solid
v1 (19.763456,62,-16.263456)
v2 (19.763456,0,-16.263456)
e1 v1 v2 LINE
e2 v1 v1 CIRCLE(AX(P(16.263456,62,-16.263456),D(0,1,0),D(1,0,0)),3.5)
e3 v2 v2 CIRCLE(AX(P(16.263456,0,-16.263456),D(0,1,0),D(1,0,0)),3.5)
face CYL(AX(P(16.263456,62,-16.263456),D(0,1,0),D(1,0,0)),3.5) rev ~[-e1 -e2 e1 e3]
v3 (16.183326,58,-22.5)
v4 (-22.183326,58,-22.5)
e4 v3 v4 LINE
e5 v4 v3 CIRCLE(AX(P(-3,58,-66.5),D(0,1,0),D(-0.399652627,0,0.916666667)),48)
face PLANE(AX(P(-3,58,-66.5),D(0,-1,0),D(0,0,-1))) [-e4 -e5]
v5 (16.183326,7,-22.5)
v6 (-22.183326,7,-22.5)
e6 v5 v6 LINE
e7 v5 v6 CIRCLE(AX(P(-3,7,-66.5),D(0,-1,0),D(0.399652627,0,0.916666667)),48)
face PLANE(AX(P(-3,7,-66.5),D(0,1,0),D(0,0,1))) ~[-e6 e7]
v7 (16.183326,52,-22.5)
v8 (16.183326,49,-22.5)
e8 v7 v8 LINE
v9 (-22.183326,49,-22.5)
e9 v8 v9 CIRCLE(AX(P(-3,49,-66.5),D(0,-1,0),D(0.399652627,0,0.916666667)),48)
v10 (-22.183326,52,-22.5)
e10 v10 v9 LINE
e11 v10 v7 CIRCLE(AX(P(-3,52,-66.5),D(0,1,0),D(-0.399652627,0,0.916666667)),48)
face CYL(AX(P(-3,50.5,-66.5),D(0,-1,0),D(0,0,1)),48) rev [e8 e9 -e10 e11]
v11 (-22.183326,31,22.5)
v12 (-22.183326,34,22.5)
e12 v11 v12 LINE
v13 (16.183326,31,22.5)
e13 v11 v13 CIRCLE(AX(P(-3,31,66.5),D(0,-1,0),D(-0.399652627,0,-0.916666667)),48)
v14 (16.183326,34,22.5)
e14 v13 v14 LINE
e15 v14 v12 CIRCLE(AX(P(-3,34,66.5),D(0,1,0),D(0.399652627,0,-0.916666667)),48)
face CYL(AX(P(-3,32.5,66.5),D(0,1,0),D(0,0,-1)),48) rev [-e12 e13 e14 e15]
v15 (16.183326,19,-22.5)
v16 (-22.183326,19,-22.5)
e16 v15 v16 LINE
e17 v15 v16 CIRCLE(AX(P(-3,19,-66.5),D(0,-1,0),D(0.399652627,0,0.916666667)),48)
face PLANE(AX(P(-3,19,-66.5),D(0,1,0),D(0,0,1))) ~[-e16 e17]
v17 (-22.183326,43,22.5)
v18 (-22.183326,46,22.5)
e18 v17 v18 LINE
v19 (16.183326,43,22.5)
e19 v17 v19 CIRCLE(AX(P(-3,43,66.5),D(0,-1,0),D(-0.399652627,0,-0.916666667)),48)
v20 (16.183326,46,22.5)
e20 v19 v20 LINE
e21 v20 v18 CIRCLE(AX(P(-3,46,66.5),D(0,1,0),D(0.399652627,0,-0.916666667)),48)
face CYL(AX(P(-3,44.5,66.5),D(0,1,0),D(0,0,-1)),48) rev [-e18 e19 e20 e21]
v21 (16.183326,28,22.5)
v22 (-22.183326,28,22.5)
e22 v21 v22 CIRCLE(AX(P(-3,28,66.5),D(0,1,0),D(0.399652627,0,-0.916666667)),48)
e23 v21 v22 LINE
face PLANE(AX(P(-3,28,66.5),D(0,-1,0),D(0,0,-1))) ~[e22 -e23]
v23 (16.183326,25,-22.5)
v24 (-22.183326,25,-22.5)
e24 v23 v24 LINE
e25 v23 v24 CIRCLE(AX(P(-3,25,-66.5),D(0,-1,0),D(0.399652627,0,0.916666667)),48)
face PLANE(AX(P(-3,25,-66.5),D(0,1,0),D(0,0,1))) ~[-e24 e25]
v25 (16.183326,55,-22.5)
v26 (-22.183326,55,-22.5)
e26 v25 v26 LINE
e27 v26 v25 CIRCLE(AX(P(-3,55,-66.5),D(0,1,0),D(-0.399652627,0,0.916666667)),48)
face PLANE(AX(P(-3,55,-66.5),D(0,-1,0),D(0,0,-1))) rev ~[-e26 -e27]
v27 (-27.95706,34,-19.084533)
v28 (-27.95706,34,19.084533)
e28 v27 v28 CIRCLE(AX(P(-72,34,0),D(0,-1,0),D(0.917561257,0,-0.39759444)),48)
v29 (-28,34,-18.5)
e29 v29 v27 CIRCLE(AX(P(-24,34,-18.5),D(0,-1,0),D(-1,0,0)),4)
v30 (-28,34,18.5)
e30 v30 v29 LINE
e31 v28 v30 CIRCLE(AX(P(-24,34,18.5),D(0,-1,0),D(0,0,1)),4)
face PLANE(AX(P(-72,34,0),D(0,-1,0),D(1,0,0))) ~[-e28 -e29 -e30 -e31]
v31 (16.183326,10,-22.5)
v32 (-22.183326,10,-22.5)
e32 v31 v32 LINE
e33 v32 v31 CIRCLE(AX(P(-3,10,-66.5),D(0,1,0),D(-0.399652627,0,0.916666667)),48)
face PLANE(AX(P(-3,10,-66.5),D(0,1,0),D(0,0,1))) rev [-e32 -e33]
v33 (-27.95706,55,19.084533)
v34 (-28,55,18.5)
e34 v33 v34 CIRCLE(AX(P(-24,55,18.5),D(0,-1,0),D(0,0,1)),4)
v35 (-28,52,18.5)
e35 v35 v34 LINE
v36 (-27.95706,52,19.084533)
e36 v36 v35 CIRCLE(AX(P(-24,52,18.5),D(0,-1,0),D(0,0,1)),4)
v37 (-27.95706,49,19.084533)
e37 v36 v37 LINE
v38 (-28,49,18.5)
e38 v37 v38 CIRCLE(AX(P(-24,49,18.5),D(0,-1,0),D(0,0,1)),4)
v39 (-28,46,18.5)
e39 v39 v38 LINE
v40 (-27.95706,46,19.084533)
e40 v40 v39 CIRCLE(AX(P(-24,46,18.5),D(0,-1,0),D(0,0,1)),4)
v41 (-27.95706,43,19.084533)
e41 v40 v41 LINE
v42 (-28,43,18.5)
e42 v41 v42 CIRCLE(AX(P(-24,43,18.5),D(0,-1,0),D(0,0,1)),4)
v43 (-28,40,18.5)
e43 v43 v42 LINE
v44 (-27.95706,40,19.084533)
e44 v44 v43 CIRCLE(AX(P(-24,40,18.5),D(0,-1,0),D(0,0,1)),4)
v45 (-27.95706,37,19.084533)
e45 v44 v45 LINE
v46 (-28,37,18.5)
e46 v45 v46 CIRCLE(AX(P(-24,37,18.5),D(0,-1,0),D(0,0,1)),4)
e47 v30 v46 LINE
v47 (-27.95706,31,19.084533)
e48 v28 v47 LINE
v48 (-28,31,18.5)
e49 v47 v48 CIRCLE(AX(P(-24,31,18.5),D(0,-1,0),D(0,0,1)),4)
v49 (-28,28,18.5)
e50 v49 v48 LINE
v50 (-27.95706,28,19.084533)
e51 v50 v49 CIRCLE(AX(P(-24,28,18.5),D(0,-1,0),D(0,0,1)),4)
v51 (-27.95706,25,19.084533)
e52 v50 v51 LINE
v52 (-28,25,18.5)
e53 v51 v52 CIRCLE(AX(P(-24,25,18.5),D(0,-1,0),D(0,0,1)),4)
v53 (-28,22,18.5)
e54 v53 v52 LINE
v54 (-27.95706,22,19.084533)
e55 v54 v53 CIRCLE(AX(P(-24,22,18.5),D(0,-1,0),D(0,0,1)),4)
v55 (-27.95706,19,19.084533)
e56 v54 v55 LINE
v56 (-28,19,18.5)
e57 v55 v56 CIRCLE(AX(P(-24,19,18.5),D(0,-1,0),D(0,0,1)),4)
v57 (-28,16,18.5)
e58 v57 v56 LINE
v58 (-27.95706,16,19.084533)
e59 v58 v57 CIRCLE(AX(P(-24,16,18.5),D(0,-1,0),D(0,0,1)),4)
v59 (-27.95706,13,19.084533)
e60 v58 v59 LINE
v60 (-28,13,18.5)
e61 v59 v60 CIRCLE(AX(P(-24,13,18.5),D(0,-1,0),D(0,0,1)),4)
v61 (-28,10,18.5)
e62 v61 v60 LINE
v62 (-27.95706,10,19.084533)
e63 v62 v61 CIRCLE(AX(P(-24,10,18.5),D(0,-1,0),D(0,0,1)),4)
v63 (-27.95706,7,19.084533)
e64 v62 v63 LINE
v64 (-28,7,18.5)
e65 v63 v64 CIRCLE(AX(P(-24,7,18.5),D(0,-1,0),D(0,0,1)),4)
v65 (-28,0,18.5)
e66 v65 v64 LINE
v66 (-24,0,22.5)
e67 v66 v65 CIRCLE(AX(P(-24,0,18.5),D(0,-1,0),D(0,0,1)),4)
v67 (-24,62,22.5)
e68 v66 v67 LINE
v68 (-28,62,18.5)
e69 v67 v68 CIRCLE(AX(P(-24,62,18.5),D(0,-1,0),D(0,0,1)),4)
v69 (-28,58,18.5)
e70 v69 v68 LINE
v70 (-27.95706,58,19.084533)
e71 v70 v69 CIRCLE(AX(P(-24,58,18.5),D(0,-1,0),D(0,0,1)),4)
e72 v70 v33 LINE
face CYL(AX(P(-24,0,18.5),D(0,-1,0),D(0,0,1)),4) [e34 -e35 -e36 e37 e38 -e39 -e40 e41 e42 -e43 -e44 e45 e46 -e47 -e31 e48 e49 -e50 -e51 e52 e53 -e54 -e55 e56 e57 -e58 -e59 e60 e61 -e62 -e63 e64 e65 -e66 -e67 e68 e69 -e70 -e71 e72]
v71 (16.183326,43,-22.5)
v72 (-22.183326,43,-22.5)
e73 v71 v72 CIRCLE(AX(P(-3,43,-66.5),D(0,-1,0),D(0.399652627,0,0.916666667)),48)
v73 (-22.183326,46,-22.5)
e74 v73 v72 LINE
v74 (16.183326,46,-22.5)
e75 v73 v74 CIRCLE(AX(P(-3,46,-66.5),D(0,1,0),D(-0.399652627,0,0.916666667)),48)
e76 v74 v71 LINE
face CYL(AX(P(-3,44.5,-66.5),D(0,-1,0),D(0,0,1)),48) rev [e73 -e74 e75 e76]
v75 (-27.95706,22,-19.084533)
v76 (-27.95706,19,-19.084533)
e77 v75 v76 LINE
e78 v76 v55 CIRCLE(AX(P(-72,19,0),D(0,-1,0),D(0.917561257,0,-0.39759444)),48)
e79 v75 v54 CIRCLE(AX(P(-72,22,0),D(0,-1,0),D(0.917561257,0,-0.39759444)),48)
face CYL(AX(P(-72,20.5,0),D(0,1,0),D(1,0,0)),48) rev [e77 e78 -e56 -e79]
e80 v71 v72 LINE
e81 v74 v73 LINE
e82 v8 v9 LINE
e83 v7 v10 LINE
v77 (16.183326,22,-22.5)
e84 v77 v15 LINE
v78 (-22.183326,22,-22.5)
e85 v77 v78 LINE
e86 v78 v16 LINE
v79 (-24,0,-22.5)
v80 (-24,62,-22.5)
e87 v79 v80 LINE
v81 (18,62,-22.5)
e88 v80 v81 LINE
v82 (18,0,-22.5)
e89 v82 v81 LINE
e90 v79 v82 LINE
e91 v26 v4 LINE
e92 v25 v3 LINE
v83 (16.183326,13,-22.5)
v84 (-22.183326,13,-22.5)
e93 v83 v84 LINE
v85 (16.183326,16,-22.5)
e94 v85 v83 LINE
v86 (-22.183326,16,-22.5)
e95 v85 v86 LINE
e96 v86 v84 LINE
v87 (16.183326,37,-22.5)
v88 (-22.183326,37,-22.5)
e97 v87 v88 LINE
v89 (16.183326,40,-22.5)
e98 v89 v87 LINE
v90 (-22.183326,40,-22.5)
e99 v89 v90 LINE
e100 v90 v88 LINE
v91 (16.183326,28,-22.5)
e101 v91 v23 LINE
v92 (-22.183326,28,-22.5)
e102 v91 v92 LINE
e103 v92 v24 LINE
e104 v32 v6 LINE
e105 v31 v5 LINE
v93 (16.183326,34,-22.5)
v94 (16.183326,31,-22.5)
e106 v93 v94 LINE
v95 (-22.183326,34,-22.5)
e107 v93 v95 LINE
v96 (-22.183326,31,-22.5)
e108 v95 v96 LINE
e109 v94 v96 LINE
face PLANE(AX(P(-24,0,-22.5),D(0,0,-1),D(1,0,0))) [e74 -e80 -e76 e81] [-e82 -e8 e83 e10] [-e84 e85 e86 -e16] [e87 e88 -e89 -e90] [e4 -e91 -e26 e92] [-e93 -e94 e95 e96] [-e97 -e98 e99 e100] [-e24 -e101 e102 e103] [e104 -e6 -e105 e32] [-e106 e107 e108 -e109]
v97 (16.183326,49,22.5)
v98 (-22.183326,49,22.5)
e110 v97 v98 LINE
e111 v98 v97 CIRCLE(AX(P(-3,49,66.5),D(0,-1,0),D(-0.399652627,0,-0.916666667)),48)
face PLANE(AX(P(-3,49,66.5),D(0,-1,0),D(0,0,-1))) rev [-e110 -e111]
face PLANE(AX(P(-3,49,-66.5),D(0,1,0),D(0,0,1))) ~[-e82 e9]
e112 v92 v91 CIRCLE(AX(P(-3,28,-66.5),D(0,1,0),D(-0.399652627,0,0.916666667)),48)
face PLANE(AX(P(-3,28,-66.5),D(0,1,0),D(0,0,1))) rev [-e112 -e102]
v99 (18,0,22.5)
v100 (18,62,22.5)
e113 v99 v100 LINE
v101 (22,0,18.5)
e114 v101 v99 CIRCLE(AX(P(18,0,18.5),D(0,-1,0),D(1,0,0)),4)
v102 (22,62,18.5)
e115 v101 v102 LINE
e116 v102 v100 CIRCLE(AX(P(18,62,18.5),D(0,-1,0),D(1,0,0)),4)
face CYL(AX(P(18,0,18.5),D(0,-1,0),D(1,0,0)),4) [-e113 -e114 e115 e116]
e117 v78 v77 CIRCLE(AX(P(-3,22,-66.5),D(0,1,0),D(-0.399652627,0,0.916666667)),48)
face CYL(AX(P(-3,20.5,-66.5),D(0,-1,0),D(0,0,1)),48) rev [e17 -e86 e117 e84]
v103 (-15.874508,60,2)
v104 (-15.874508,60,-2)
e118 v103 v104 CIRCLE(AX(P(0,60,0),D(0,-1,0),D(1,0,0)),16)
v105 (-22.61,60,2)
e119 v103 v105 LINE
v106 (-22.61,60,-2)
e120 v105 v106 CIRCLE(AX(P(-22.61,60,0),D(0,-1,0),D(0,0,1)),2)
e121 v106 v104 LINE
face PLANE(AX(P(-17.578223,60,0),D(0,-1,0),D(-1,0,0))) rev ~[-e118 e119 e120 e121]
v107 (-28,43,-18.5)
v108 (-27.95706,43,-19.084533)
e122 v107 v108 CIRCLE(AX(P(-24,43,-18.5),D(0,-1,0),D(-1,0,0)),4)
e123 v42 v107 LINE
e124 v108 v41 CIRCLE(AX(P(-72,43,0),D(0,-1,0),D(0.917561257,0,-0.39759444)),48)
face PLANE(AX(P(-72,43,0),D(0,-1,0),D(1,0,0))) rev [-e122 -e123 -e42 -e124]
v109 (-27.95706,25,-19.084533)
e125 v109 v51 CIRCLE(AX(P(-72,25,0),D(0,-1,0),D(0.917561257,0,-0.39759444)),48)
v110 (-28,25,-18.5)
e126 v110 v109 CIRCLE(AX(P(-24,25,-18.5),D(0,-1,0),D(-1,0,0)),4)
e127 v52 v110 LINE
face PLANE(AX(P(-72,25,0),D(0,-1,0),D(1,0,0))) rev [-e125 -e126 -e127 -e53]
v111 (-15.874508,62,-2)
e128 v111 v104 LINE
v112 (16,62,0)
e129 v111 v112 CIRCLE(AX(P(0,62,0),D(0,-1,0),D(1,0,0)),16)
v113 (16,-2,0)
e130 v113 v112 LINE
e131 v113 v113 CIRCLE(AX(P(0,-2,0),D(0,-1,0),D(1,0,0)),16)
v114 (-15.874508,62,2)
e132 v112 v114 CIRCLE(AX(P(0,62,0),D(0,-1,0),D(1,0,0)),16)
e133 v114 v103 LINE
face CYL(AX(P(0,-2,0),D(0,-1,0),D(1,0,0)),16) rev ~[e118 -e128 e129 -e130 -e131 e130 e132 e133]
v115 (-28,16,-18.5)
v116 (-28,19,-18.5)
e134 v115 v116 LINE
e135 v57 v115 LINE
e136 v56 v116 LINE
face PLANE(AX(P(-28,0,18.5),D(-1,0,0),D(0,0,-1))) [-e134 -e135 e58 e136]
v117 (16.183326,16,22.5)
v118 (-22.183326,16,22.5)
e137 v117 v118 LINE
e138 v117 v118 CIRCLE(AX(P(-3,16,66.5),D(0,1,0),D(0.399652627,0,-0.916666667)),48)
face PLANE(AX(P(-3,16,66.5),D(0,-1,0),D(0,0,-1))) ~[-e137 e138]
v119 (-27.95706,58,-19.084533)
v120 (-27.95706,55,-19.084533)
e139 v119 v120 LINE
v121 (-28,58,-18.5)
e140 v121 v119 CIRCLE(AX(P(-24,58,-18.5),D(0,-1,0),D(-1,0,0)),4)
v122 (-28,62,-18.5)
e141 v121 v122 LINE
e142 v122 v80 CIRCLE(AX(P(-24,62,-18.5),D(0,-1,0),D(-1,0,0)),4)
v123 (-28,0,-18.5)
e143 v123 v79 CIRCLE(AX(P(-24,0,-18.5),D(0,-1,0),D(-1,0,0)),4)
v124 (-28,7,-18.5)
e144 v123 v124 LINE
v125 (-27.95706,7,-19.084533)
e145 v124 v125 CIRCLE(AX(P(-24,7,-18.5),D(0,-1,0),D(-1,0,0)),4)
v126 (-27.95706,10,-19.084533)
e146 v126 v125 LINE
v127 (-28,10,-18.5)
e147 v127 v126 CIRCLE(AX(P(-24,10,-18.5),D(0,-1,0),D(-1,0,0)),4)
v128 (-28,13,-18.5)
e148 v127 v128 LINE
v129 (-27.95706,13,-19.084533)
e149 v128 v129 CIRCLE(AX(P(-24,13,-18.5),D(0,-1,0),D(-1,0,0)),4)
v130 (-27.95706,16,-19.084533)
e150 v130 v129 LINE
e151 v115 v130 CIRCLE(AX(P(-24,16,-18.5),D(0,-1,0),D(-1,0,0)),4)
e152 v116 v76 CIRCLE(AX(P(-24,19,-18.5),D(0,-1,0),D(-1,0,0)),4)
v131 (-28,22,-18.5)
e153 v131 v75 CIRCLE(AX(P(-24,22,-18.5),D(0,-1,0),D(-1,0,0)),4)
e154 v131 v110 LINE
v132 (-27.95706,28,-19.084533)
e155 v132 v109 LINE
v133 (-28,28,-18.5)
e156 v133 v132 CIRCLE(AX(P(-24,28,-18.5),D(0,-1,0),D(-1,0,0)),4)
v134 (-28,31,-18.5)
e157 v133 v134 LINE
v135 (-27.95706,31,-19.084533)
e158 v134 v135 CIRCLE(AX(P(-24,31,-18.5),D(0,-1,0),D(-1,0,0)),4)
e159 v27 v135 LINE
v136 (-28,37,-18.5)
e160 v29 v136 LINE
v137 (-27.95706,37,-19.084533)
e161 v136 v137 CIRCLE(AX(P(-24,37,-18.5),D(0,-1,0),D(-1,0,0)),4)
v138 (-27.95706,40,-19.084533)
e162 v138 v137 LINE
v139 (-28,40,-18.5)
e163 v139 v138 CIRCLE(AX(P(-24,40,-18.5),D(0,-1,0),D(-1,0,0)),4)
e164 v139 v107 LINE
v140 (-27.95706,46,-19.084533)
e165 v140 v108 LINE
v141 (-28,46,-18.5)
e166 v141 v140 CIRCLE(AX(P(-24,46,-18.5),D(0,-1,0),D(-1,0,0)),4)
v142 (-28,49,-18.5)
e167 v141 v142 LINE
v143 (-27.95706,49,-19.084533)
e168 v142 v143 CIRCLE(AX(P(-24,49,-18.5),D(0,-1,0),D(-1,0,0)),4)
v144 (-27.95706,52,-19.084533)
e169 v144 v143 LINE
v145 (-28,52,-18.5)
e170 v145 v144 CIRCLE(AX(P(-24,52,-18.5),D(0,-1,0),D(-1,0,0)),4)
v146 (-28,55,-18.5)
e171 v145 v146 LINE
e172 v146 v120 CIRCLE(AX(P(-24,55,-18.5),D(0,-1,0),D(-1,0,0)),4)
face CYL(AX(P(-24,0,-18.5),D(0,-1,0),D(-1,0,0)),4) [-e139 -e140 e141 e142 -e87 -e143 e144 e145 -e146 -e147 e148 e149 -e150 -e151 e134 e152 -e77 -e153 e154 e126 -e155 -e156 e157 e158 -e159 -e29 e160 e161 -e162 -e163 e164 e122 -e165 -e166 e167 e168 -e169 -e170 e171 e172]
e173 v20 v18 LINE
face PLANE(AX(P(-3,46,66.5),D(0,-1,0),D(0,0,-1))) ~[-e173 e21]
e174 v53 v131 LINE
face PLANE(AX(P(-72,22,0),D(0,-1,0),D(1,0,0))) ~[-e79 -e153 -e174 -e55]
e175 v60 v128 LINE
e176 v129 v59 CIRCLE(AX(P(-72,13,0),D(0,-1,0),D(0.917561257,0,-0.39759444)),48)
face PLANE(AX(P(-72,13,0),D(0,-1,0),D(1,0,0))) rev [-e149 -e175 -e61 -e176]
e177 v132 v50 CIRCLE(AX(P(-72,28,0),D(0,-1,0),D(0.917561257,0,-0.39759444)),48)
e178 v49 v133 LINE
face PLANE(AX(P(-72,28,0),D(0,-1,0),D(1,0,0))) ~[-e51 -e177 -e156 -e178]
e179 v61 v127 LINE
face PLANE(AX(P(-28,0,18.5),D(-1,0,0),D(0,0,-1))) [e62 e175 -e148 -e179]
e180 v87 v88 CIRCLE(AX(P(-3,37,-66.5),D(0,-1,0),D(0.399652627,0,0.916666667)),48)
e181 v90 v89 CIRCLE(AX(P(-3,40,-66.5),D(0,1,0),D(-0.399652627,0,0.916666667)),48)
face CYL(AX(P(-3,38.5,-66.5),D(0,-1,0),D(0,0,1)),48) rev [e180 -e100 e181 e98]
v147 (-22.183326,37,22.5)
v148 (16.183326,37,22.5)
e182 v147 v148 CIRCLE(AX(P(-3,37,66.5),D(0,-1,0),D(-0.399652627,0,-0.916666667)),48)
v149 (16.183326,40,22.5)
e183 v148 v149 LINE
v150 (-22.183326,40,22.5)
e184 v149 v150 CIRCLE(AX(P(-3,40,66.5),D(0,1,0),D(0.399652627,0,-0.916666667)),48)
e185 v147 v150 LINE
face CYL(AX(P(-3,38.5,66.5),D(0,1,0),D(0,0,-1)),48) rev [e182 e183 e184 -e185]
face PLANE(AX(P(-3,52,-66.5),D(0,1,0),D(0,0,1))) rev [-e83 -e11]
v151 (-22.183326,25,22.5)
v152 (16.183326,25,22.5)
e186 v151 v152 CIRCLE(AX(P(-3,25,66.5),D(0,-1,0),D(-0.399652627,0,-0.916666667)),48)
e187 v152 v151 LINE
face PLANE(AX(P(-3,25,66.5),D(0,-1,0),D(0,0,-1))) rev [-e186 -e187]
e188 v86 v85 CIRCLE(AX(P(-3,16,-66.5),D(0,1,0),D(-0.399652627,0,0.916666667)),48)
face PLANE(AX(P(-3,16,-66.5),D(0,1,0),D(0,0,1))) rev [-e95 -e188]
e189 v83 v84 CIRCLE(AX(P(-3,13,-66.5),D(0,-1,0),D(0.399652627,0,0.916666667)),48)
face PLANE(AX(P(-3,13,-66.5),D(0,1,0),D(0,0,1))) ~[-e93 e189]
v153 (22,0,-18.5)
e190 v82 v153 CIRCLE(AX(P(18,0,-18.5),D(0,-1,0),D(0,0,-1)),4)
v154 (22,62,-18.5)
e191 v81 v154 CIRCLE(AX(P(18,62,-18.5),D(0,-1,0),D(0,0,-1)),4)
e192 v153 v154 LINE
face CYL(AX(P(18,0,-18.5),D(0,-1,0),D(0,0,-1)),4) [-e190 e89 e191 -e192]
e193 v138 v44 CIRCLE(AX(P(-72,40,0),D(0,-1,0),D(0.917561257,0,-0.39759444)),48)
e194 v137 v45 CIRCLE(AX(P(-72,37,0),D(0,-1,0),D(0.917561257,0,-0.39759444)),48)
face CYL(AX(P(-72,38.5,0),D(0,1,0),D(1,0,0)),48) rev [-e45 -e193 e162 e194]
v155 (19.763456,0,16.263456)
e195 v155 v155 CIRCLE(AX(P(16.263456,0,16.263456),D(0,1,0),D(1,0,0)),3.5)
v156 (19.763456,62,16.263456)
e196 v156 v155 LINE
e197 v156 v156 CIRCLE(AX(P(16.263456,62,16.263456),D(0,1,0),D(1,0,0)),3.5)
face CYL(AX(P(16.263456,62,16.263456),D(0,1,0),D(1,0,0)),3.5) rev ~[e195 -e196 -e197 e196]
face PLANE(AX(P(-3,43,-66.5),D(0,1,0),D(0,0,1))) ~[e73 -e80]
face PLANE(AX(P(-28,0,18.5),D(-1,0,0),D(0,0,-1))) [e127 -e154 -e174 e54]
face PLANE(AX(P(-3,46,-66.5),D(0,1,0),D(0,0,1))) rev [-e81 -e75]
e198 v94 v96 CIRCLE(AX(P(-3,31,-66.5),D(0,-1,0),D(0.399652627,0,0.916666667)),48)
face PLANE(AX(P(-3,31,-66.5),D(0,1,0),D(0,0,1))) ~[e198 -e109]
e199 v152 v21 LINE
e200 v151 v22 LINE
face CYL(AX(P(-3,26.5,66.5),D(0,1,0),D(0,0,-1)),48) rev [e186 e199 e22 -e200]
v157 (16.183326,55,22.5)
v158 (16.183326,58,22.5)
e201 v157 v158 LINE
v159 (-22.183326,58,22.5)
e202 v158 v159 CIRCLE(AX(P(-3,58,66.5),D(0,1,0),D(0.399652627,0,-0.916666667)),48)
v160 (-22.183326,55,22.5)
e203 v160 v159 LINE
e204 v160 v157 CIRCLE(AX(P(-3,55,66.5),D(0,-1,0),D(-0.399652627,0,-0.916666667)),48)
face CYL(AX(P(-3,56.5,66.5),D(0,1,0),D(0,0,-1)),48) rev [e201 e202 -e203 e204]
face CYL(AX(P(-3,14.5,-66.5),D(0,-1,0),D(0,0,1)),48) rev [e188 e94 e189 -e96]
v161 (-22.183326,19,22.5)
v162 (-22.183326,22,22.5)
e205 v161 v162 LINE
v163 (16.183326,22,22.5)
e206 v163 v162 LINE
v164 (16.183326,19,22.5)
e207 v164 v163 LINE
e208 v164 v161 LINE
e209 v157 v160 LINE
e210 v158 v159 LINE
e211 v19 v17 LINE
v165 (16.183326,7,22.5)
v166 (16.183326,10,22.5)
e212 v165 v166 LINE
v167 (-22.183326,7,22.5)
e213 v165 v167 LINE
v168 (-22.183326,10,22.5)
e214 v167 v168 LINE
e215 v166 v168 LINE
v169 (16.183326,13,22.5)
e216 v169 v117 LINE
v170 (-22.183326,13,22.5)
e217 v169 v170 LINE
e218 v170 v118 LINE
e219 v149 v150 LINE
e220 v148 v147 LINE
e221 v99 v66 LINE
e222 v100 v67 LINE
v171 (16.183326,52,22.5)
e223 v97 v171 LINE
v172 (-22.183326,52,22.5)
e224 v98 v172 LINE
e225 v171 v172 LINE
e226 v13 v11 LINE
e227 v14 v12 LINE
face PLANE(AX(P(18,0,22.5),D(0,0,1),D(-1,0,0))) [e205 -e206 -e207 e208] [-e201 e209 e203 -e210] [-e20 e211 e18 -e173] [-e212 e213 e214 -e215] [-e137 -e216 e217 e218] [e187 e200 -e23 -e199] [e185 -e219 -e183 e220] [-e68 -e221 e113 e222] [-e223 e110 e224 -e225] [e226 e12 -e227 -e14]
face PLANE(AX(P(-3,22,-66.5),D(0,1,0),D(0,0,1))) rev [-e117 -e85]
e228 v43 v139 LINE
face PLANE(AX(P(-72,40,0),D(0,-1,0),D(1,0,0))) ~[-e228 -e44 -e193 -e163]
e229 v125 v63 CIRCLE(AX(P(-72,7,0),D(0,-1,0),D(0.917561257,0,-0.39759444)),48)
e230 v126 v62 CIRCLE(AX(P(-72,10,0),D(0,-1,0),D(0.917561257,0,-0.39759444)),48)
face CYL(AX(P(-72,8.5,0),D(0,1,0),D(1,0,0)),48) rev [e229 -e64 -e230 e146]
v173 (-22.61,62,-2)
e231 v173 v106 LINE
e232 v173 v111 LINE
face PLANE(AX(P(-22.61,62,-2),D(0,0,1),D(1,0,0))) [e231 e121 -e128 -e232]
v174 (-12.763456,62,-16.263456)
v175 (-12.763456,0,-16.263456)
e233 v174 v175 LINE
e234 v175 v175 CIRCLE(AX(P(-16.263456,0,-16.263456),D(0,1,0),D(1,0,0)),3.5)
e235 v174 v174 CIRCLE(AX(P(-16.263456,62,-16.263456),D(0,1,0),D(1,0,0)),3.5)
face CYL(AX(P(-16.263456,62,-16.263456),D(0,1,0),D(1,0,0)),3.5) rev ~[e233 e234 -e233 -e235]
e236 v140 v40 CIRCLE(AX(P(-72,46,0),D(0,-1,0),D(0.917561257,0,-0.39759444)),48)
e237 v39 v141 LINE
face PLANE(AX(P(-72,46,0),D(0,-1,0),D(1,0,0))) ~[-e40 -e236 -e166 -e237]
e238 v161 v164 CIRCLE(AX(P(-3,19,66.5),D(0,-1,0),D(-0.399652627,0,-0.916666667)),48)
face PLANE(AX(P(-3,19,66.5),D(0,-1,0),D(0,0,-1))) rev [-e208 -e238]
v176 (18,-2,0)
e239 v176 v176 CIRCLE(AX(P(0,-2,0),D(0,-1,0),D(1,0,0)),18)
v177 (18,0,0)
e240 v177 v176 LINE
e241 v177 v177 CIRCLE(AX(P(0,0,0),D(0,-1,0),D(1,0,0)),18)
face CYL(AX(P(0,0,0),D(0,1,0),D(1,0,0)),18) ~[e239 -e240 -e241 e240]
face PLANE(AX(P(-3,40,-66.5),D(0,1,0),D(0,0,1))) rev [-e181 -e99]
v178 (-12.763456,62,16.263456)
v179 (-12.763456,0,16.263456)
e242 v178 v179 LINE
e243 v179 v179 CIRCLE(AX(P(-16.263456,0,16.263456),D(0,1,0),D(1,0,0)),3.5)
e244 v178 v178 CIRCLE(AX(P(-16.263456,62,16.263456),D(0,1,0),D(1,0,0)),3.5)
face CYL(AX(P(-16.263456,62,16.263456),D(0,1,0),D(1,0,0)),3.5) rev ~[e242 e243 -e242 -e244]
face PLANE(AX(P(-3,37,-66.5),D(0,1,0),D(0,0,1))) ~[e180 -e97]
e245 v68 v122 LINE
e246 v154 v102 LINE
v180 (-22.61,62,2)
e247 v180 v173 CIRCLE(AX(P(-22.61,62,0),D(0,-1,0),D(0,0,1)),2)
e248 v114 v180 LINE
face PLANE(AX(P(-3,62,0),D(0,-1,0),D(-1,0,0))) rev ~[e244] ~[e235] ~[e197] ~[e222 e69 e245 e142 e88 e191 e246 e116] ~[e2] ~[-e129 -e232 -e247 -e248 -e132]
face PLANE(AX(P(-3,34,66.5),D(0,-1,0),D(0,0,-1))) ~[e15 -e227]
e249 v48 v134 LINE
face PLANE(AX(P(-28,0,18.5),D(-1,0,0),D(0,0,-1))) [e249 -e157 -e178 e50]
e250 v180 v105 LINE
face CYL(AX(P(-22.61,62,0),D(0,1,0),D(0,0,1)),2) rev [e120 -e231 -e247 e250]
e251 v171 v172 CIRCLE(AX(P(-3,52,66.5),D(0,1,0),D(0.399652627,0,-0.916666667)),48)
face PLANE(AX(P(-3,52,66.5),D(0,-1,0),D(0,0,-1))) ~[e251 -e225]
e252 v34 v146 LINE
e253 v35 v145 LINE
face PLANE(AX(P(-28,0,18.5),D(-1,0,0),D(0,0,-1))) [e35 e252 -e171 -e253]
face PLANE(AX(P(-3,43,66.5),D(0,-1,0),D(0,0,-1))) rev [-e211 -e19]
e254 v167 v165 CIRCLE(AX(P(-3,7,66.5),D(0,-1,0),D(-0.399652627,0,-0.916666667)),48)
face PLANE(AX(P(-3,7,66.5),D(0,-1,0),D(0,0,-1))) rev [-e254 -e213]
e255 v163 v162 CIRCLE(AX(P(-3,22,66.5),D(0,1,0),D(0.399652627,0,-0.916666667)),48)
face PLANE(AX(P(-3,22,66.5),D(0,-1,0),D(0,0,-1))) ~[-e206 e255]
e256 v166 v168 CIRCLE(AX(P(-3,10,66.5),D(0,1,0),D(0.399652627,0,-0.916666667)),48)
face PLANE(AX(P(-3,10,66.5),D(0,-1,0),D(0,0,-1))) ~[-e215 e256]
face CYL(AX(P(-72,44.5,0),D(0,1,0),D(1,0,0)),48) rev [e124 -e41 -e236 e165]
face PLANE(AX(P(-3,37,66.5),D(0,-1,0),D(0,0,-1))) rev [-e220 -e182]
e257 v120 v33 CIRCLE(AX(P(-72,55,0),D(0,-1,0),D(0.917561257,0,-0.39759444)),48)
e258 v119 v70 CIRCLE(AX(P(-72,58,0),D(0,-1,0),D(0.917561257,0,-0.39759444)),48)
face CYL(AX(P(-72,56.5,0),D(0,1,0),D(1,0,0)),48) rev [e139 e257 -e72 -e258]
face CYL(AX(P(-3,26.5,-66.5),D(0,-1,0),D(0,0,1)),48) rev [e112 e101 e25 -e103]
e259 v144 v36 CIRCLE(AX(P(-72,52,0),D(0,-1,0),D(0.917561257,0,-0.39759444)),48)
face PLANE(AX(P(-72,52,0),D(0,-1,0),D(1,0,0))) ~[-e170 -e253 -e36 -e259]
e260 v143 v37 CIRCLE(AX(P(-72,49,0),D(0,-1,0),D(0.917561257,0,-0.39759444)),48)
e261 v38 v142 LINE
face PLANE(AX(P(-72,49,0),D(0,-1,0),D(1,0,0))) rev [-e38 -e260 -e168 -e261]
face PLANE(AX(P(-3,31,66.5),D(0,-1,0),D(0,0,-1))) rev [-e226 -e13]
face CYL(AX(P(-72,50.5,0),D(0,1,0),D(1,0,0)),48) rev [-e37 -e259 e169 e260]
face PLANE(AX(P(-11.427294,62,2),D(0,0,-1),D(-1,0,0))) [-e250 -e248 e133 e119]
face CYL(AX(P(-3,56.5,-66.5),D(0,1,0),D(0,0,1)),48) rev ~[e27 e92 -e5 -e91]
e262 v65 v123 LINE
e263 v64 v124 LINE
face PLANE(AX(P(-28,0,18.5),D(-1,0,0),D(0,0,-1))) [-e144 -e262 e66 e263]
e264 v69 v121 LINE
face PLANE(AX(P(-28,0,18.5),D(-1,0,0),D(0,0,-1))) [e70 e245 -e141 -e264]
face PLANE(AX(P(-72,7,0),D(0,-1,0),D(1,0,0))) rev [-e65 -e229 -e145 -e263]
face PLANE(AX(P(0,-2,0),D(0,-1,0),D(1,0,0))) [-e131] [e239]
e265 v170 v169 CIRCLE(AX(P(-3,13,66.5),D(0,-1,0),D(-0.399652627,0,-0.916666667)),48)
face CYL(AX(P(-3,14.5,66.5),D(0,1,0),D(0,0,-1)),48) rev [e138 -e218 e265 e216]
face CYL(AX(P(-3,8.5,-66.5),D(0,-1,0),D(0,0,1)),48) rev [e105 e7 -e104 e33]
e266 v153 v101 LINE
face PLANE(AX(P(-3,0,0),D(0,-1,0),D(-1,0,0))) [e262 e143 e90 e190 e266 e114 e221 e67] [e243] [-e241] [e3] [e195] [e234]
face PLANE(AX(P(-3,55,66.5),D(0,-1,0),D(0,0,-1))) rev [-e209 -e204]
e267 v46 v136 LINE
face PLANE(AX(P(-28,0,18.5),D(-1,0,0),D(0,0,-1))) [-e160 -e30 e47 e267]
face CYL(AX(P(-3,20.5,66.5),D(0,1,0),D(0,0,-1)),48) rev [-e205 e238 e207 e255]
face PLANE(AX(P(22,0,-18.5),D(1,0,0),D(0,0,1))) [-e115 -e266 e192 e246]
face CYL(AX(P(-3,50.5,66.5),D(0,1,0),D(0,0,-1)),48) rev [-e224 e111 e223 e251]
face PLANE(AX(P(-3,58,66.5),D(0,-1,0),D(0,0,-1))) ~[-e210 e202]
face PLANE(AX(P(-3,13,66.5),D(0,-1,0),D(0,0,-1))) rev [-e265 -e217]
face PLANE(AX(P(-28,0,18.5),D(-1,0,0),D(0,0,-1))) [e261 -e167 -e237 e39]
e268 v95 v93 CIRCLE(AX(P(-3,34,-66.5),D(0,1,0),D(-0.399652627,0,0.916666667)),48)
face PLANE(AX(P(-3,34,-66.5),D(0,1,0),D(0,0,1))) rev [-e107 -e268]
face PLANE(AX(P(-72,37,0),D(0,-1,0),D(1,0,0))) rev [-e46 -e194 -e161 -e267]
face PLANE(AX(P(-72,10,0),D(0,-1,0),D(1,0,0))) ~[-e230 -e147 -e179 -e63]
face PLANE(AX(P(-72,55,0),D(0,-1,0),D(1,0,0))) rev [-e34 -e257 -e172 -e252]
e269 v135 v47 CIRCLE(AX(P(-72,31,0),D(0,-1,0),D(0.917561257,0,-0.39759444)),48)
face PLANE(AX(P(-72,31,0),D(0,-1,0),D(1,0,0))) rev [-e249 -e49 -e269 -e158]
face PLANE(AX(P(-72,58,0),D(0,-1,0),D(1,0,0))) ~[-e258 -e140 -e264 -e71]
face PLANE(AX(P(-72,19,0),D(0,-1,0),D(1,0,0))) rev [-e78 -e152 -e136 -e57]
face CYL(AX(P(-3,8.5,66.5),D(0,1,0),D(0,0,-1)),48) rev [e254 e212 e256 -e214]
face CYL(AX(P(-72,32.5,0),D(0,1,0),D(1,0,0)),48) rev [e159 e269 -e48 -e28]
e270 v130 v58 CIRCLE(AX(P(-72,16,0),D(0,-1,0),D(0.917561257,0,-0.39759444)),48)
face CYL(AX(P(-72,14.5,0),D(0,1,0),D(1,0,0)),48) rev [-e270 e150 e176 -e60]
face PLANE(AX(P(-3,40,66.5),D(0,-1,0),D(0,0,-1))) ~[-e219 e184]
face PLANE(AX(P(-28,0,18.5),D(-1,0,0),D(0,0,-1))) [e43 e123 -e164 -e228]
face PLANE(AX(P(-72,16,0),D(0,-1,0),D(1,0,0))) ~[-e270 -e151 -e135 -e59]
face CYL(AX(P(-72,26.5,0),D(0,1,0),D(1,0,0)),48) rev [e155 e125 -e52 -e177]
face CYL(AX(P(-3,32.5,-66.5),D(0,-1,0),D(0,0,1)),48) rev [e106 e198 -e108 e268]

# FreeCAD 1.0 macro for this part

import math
import FreeCAD as App
import Part
import Sketcher

doc = App.newDocument("Part")
body = doc.addObject("PartDesign::Body", "Body")

sketch1 = body.newObject("Sketcher::SketchObject", "Sketch")
sketch1.AttachmentSupport = (doc.getObject("XZ_Plane"), [""])
sketch1.MapMode = "FlatFace"
sketch1.addGeometry([
    Part.LineSegment(App.Vector(18, -22.5, 0), App.Vector(-24, -22.5, 0)),
    Part.ArcOfCircle(Part.Circle(App.Vector(-24, -18.5, 0), App.Vector(0, 0, 1), 4), math.radians(180), math.radians(270)),
    Part.LineSegment(App.Vector(-28, -18.5, 0), App.Vector(-28, 18.5, 0)),
    Part.ArcOfCircle(Part.Circle(App.Vector(-24, 18.5, 0), App.Vector(0, 0, 1), 4), math.radians(90), math.radians(180)),
    Part.LineSegment(App.Vector(-24, 22.5, 0), App.Vector(18, 22.5, 0)),
    Part.ArcOfCircle(Part.Circle(App.Vector(18, 18.5, 0), App.Vector(0, 0, 1), 4), math.radians(0), math.radians(90)),
    Part.LineSegment(App.Vector(22, 18.5, 0), App.Vector(22, -18.5, 0)),
    Part.ArcOfCircle(Part.Circle(App.Vector(18, -18.5, 0), App.Vector(0, 0, 1), 4), math.radians(-90), math.radians(0)),
], False)
sketch1.addConstraint([
    Sketcher.Constraint("Tangent", 0, 2, 1, 2),
    Sketcher.Constraint("Tangent", 1, 1, 2, 1),
    Sketcher.Constraint("Tangent", 2, 2, 3, 2),
    Sketcher.Constraint("Tangent", 3, 1, 4, 1),
    Sketcher.Constraint("Tangent", 4, 2, 5, 2),
    Sketcher.Constraint("Tangent", 5, 1, 6, 1),
    Sketcher.Constraint("Tangent", 6, 2, 7, 2),
    Sketcher.Constraint("Tangent", 7, 1, 0, 1),
    Sketcher.Constraint("Horizontal", 0),
    Sketcher.Constraint("Vertical", 2),
    Sketcher.Constraint("Horizontal", 4),
    Sketcher.Constraint("Vertical", 6),
    Sketcher.Constraint("Equal", 1, 3),
    Sketcher.Constraint("Equal", 3, 5),
    Sketcher.Constraint("Equal", 5, 7),
    Sketcher.Constraint("Radius", 1, 4.0),
    Sketcher.Constraint("DistanceX", 0, 2, 0, 1, 42.0),
    Sketcher.Constraint("DistanceY", 2, 1, 2, 2, 37.0),
    Sketcher.Constraint("DistanceX", 1, 3, -1, 1, 24.0),
    Sketcher.Constraint("DistanceY", 1, 3, -1, 1, 18.5),
])
pad1 = body.newObject("PartDesign::Pad", "Pad")
pad1.Profile = sketch1
pad1.Length = 62
pad1.Reversed = True

sketch2 = body.newObject("Sketcher::SketchObject", "Sketch001")
sketch2.AttachmentSupport = (doc.getObject("XZ_Plane"), [""])
sketch2.MapMode = "FlatFace"
sketch2.addGeometry(Part.Circle(App.Vector(0, 0, 0), App.Vector(0, 0, 1), 18), False)
sketch2.addConstraint([
    Sketcher.Constraint("Coincident", 0, 3, -1, 1),
    Sketcher.Constraint("Diameter", 0, 36.0),
])
pad2 = body.newObject("PartDesign::Pad", "Pad001")
pad2.Profile = sketch2
pad2.Length = 2

sketch3 = body.newObject("Sketcher::SketchObject", "Sketch002")
sketch3.AttachmentSupport = (doc.getObject("XZ_Plane"), [""])
sketch3.MapMode = "FlatFace"
sketch3.AttachmentOffset = App.Placement(App.Vector(0, 0, 2), App.Rotation())
sketch3.addGeometry(Part.Circle(App.Vector(0, 0, 0), App.Vector(0, 0, 1), 16), False)
sketch3.addConstraint([
    Sketcher.Constraint("Coincident", 0, 3, -1, 1),
    Sketcher.Constraint("Diameter", 0, 32.0),
])
pocket1 = body.newObject("PartDesign::Pocket", "Pocket")
pocket1.Profile = sketch3
pocket1.Type = "ThroughAll"

sketch4 = body.newObject("Sketcher::SketchObject", "Sketch003")
sketch4.AttachmentSupport = (doc.getObject("XZ_Plane"), [""])
sketch4.MapMode = "FlatFace"
sketch4.AttachmentOffset = App.Placement(App.Vector(0, 0, -62), App.Rotation())
sketch4.addGeometry([
    Part.LineSegment(App.Vector(-11.4, -2, 0), App.Vector(-22.6, -2, 0)),
    Part.ArcOfCircle(Part.Circle(App.Vector(-22.6, 0, 0), App.Vector(0, 0, 1), 2), math.radians(90), math.radians(270)),
    Part.LineSegment(App.Vector(-22.6, 2, 0), App.Vector(-11.4, 2, 0)),
    Part.LineSegment(App.Vector(-11.4, 2, 0), App.Vector(-11.4, -2, 0)),
], False)
sketch4.addConstraint([
    Sketcher.Constraint("Tangent", 0, 2, 1, 2),
    Sketcher.Constraint("Tangent", 1, 1, 2, 1),
    Sketcher.Constraint("Coincident", 2, 2, 3, 1),
    Sketcher.Constraint("Coincident", 3, 2, 0, 1),
    Sketcher.Constraint("Horizontal", 0),
    Sketcher.Constraint("Horizontal", 2),
    Sketcher.Constraint("Vertical", 3),
    Sketcher.Constraint("PointOnObject", 1, 3, -1),
    Sketcher.Constraint("Radius", 1, 2.0),
    Sketcher.Constraint("DistanceX", 1, 3, -1, 1, 22.61),
    Sketcher.Constraint("DistanceX", 0, 2, 0, 1, 11.182706),
])
pocket2 = body.newObject("PartDesign::Pocket", "Pocket001")
pocket2.Profile = sketch4
pocket2.Length = 2
pocket2.Reversed = True

sketch5 = body.newObject("Sketcher::SketchObject", "Sketch004")
sketch5.AttachmentSupport = (doc.getObject("XZ_Plane"), [""])
sketch5.MapMode = "FlatFace"
sketch5.AttachmentOffset = App.Placement(App.Vector(0, 0, -62), App.Rotation())
sketch5.addGeometry([
    Part.Circle(App.Vector(16.3, -16.3, 0), App.Vector(0, 0, 1), 3.5),
    Part.Circle(App.Vector(16.3, 16.3, 0), App.Vector(0, 0, 1), 3.5),
    Part.Circle(App.Vector(-16.3, 16.3, 0), App.Vector(0, 0, 1), 3.5),
    Part.Circle(App.Vector(-16.3, -16.3, 0), App.Vector(0, 0, 1), 3.5),
], False)
sketch5.addConstraint([
    Sketcher.Constraint("Equal", 0, 1),
    Sketcher.Constraint("Equal", 1, 2),
    Sketcher.Constraint("Equal", 2, 3),
    Sketcher.Constraint("Symmetric", 0, 3, 2, 3, -1, 1),
    Sketcher.Constraint("Symmetric", 1, 3, 3, 3, -1, 1),
    Sketcher.Constraint("Symmetric", 1, 3, 2, 3, -2),
    Sketcher.Constraint("Diameter", 0, 7.0),
    Sketcher.Constraint("DistanceY", 0, 3, 1, 3, 32.526912),
    Sketcher.Constraint("DistanceX", 2, 3, 1, 3, 32.526912),
])
pocket3 = body.newObject("PartDesign::Pocket", "Pocket002")
pocket3.Profile = sketch5
pocket3.Type = "ThroughAll"
pocket3.Reversed = True

sketch6 = body.newObject("Sketcher::SketchObject", "Sketch005")
sketch6.AttachmentSupport = (doc.getObject("YZ_Plane"), [""])
sketch6.MapMode = "FlatFace"
sketch6.AttachmentOffset = App.Placement(App.Vector(0, 0, -3), App.Rotation())
sketch6.addGeometry([
    Part.LineSegment(App.Vector(58, 66.5, 0), App.Vector(55, 66.5, 0)),
    Part.LineSegment(App.Vector(55, 66.5, 0), App.Vector(55, 18.5, 0)),
    Part.LineSegment(App.Vector(55, 18.5, 0), App.Vector(58, 18.5, 0)),
    Part.LineSegment(App.Vector(58, 18.5, 0), App.Vector(58, 66.5, 0)),
], False)
sketch6.addGeometry(Part.LineSegment(App.Vector(58, 66.5, 0), App.Vector(55, 66.5, 0)), True)
sketch6.addConstraint([
    Sketcher.Constraint("Coincident", 0, 2, 1, 1),
    Sketcher.Constraint("Coincident", 1, 2, 2, 1),
    Sketcher.Constraint("Coincident", 2, 2, 3, 1),
    Sketcher.Constraint("Coincident", 3, 2, 0, 1),
    Sketcher.Constraint("Horizontal", 0),
    Sketcher.Constraint("Vertical", 1),
    Sketcher.Constraint("Horizontal", 2),
    Sketcher.Constraint("Vertical", 3),
    Sketcher.Constraint("Horizontal", 4),
    Sketcher.Constraint("Coincident", 4, 1, 3, 2),
    Sketcher.Constraint("Vertical", 1, 2, 4, 2),
    Sketcher.Constraint("DistanceX", 0, 2, 0, 1, 3.0),
    Sketcher.Constraint("DistanceY", 1, 2, 1, 1, 48.0),
    Sketcher.Constraint("DistanceX", -1, 1, 0, 2, 55.0),
    Sketcher.Constraint("DistanceY", -1, 1, 0, 2, 66.5),
])
groove = body.newObject("PartDesign::Groove", "Groove")
groove.Profile = sketch6
groove.ReferenceAxis = (sketch6, ["Axis0"])
groove.Angle = 360
doc.recompute()

linearpattern = body.newObject("PartDesign::LinearPattern", "LinearPattern")
linearpattern.Originals = [groove]
linearpattern.Direction = (doc.getObject("Y_Axis"), [""])
linearpattern.Mode = "offset"
linearpattern.Offset = 6
linearpattern.Occurrences = 9
linearpattern.Reversed = True
body.Tip = linearpattern
doc.recompute()

mirrored = body.newObject("PartDesign::Mirrored", "Mirrored")
mirrored.Originals = [groove]
mirrored.MirrorPlane = (doc.getObject("XY_Plane"), [""])
body.Tip = mirrored

sketch7 = body.newObject("Sketcher::SketchObject", "Sketch006")
sketch7.AttachmentSupport = (doc.getObject("YZ_Plane"), [""])
sketch7.MapMode = "FlatFace"
sketch7.AttachmentOffset = App.Placement(App.Vector(0, 0, -3), App.Rotation())
sketch7.addGeometry([
    Part.LineSegment(App.Vector(49, -66.5, 0), App.Vector(52, -66.5, 0)),
    Part.LineSegment(App.Vector(52, -66.5, 0), App.Vector(52, -18.5, 0)),
    Part.LineSegment(App.Vector(52, -18.5, 0), App.Vector(49, -18.5, 0)),
    Part.LineSegment(App.Vector(49, -18.5, 0), App.Vector(49, -66.5, 0)),
], False)
sketch7.addGeometry(Part.LineSegment(App.Vector(49, -66.5, 0), App.Vector(52, -66.5, 0)), True)
sketch7.addConstraint([
    Sketcher.Constraint("Coincident", 0, 2, 1, 1),
    Sketcher.Constraint("Coincident", 1, 2, 2, 1),
    Sketcher.Constraint("Coincident", 2, 2, 3, 1),
    Sketcher.Constraint("Coincident", 3, 2, 0, 1),
    Sketcher.Constraint("Horizontal", 0),
    Sketcher.Constraint("Vertical", 1),
    Sketcher.Constraint("Horizontal", 2),
    Sketcher.Constraint("Vertical", 3),
    Sketcher.Constraint("Horizontal", 4),
    Sketcher.Constraint("Coincident", 4, 1, 3, 2),
    Sketcher.Constraint("Vertical", 1, 2, 4, 2),
    Sketcher.Constraint("DistanceX", 0, 1, 0, 2, 3.0),
    Sketcher.Constraint("DistanceY", 1, 1, 1, 2, 48.0),
    Sketcher.Constraint("DistanceX", -1, 1, 0, 2, 52.0),
    Sketcher.Constraint("DistanceY", 0, 2, -1, 1, 66.5),
])
groove2 = body.newObject("PartDesign::Groove", "Groove001")
groove2.Profile = sketch7
groove2.ReferenceAxis = (sketch7, ["Axis0"])
groove2.Angle = 360

sketch8 = body.newObject("Sketcher::SketchObject", "Sketch007")
sketch8.AttachmentSupport = (doc.getObject("YZ_Plane"), [""])
sketch8.MapMode = "FlatFace"
sketch8.AttachmentOffset = App.Placement(App.Vector(0, 0, -3), App.Rotation())
sketch8.addGeometry([
    Part.LineSegment(App.Vector(43, -66.5, 0), App.Vector(46, -66.5, 0)),
    Part.LineSegment(App.Vector(46, -66.5, 0), App.Vector(46, -18.5, 0)),
    Part.LineSegment(App.Vector(46, -18.5, 0), App.Vector(43, -18.5, 0)),
    Part.LineSegment(App.Vector(43, -18.5, 0), App.Vector(43, -66.5, 0)),
], False)
sketch8.addGeometry(Part.LineSegment(App.Vector(43, -66.5, 0), App.Vector(46, -66.5, 0)), True)
sketch8.addConstraint([
    Sketcher.Constraint("Coincident", 0, 2, 1, 1),
    Sketcher.Constraint("Coincident", 1, 2, 2, 1),
    Sketcher.Constraint("Coincident", 2, 2, 3, 1),
    Sketcher.Constraint("Coincident", 3, 2, 0, 1),
    Sketcher.Constraint("Horizontal", 0),
    Sketcher.Constraint("Vertical", 1),
    Sketcher.Constraint("Horizontal", 2),
    Sketcher.Constraint("Vertical", 3),
    Sketcher.Constraint("Horizontal", 4),
    Sketcher.Constraint("Coincident", 4, 1, 3, 2),
    Sketcher.Constraint("Vertical", 1, 2, 4, 2),
    Sketcher.Constraint("DistanceX", 0, 1, 0, 2, 3.0),
    Sketcher.Constraint("DistanceY", 1, 1, 1, 2, 48.0),
    Sketcher.Constraint("DistanceX", -1, 1, 0, 2, 46.0),
    Sketcher.Constraint("DistanceY", 0, 2, -1, 1, 66.5),
])
groove3 = body.newObject("PartDesign::Groove", "Groove002")
groove3.Profile = sketch8
groove3.ReferenceAxis = (sketch8, ["Axis0"])
groove3.Angle = 360

sketch9 = body.newObject("Sketcher::SketchObject", "Sketch008")
sketch9.AttachmentSupport = (doc.getObject("YZ_Plane"), [""])
sketch9.MapMode = "FlatFace"
sketch9.AttachmentOffset = App.Placement(App.Vector(0, 0, -3), App.Rotation())
sketch9.addGeometry([
    Part.LineSegment(App.Vector(37, -66.5, 0), App.Vector(40, -66.5, 0)),
    Part.LineSegment(App.Vector(40, -66.5, 0), App.Vector(40, -18.5, 0)),
    Part.LineSegment(App.Vector(40, -18.5, 0), App.Vector(37, -18.5, 0)),
    Part.LineSegment(App.Vector(37, -18.5, 0), App.Vector(37, -66.5, 0)),
], False)
sketch9.addGeometry(Part.LineSegment(App.Vector(37, -66.5, 0), App.Vector(40, -66.5, 0)), True)
sketch9.addConstraint([
    Sketcher.Constraint("Coincident", 0, 2, 1, 1),
    Sketcher.Constraint("Coincident", 1, 2, 2, 1),
    Sketcher.Constraint("Coincident", 2, 2, 3, 1),
    Sketcher.Constraint("Coincident", 3, 2, 0, 1),
    Sketcher.Constraint("Horizontal", 0),
    Sketcher.Constraint("Vertical", 1),
    Sketcher.Constraint("Horizontal", 2),
    Sketcher.Constraint("Vertical", 3),
    Sketcher.Constraint("Horizontal", 4),
    Sketcher.Constraint("Coincident", 4, 1, 3, 2),
    Sketcher.Constraint("Vertical", 1, 2, 4, 2),
    Sketcher.Constraint("DistanceX", 0, 1, 0, 2, 3.0),
    Sketcher.Constraint("DistanceY", 1, 1, 1, 2, 48.0),
    Sketcher.Constraint("DistanceX", -1, 1, 0, 2, 40.0),
    Sketcher.Constraint("DistanceY", 0, 2, -1, 1, 66.5),
])
groove4 = body.newObject("PartDesign::Groove", "Groove003")
groove4.Profile = sketch9
groove4.ReferenceAxis = (sketch9, ["Axis0"])
groove4.Angle = 360

sketch10 = body.newObject("Sketcher::SketchObject", "Sketch009")
sketch10.AttachmentSupport = (doc.getObject("YZ_Plane"), [""])
sketch10.MapMode = "FlatFace"
sketch10.AttachmentOffset = App.Placement(App.Vector(0, 0, -3), App.Rotation())
sketch10.addGeometry([
    Part.LineSegment(App.Vector(31, -66.5, 0), App.Vector(34, -66.5, 0)),
    Part.LineSegment(App.Vector(34, -66.5, 0), App.Vector(34, -18.5, 0)),
    Part.LineSegment(App.Vector(34, -18.5, 0), App.Vector(31, -18.5, 0)),
    Part.LineSegment(App.Vector(31, -18.5, 0), App.Vector(31, -66.5, 0)),
], False)
sketch10.addGeometry(Part.LineSegment(App.Vector(31, -66.5, 0), App.Vector(34, -66.5, 0)), True)
sketch10.addConstraint([
    Sketcher.Constraint("Coincident", 0, 2, 1, 1),
    Sketcher.Constraint("Coincident", 1, 2, 2, 1),
    Sketcher.Constraint("Coincident", 2, 2, 3, 1),
    Sketcher.Constraint("Coincident", 3, 2, 0, 1),
    Sketcher.Constraint("Horizontal", 0),
    Sketcher.Constraint("Vertical", 1),
    Sketcher.Constraint("Horizontal", 2),
    Sketcher.Constraint("Vertical", 3),
    Sketcher.Constraint("Horizontal", 4),
    Sketcher.Constraint("Coincident", 4, 1, 3, 2),
    Sketcher.Constraint("Vertical", 1, 2, 4, 2),
    Sketcher.Constraint("DistanceX", 0, 1, 0, 2, 3.0),
    Sketcher.Constraint("DistanceY", 1, 1, 1, 2, 48.0),
    Sketcher.Constraint("DistanceX", -1, 1, 0, 2, 34.0),
    Sketcher.Constraint("DistanceY", 0, 2, -1, 1, 66.5),
])
groove5 = body.newObject("PartDesign::Groove", "Groove004")
groove5.Profile = sketch10
groove5.ReferenceAxis = (sketch10, ["Axis0"])
groove5.Angle = 360

sketch11 = body.newObject("Sketcher::SketchObject", "Sketch010")
sketch11.AttachmentSupport = (doc.getObject("YZ_Plane"), [""])
sketch11.MapMode = "FlatFace"
sketch11.AttachmentOffset = App.Placement(App.Vector(0, 0, -3), App.Rotation())
sketch11.addGeometry([
    Part.LineSegment(App.Vector(25, -66.5, 0), App.Vector(28, -66.5, 0)),
    Part.LineSegment(App.Vector(28, -66.5, 0), App.Vector(28, -18.5, 0)),
    Part.LineSegment(App.Vector(28, -18.5, 0), App.Vector(25, -18.5, 0)),
    Part.LineSegment(App.Vector(25, -18.5, 0), App.Vector(25, -66.5, 0)),
], False)
sketch11.addGeometry(Part.LineSegment(App.Vector(25, -66.5, 0), App.Vector(28, -66.5, 0)), True)
sketch11.addConstraint([
    Sketcher.Constraint("Coincident", 0, 2, 1, 1),
    Sketcher.Constraint("Coincident", 1, 2, 2, 1),
    Sketcher.Constraint("Coincident", 2, 2, 3, 1),
    Sketcher.Constraint("Coincident", 3, 2, 0, 1),
    Sketcher.Constraint("Horizontal", 0),
    Sketcher.Constraint("Vertical", 1),
    Sketcher.Constraint("Horizontal", 2),
    Sketcher.Constraint("Vertical", 3),
    Sketcher.Constraint("Horizontal", 4),
    Sketcher.Constraint("Coincident", 4, 1, 3, 2),
    Sketcher.Constraint("Vertical", 1, 2, 4, 2),
    Sketcher.Constraint("DistanceX", 0, 1, 0, 2, 3.0),
    Sketcher.Constraint("DistanceY", 1, 1, 1, 2, 48.0),
    Sketcher.Constraint("DistanceX", -1, 1, 0, 2, 28.0),
    Sketcher.Constraint("DistanceY", 0, 2, -1, 1, 66.5),
])
groove6 = body.newObject("PartDesign::Groove", "Groove005")
groove6.Profile = sketch11
groove6.ReferenceAxis = (sketch11, ["Axis0"])
groove6.Angle = 360

sketch12 = body.newObject("Sketcher::SketchObject", "Sketch011")
sketch12.AttachmentSupport = (doc.getObject("YZ_Plane"), [""])
sketch12.MapMode = "FlatFace"
sketch12.AttachmentOffset = App.Placement(App.Vector(0, 0, -3), App.Rotation())
sketch12.addGeometry([
    Part.LineSegment(App.Vector(19, -66.5, 0), App.Vector(22, -66.5, 0)),
    Part.LineSegment(App.Vector(22, -66.5, 0), App.Vector(22, -18.5, 0)),
    Part.LineSegment(App.Vector(22, -18.5, 0), App.Vector(19, -18.5, 0)),
    Part.LineSegment(App.Vector(19, -18.5, 0), App.Vector(19, -66.5, 0)),
], False)
sketch12.addGeometry(Part.LineSegment(App.Vector(19, -66.5, 0), App.Vector(22, -66.5, 0)), True)
sketch12.addConstraint([
    Sketcher.Constraint("Coincident", 0, 2, 1, 1),
    Sketcher.Constraint("Coincident", 1, 2, 2, 1),
    Sketcher.Constraint("Coincident", 2, 2, 3, 1),
    Sketcher.Constraint("Coincident", 3, 2, 0, 1),
    Sketcher.Constraint("Horizontal", 0),
    Sketcher.Constraint("Vertical", 1),
    Sketcher.Constraint("Horizontal", 2),
    Sketcher.Constraint("Vertical", 3),
    Sketcher.Constraint("Horizontal", 4),
    Sketcher.Constraint("Coincident", 4, 1, 3, 2),
    Sketcher.Constraint("Vertical", 1, 2, 4, 2),
    Sketcher.Constraint("DistanceX", 0, 1, 0, 2, 3.0),
    Sketcher.Constraint("DistanceY", 1, 1, 1, 2, 48.0),
    Sketcher.Constraint("DistanceX", -1, 1, 0, 2, 22.0),
    Sketcher.Constraint("DistanceY", 0, 2, -1, 1, 66.5),
])
groove7 = body.newObject("PartDesign::Groove", "Groove006")
groove7.Profile = sketch12
groove7.ReferenceAxis = (sketch12, ["Axis0"])
groove7.Angle = 360

sketch13 = body.newObject("Sketcher::SketchObject", "Sketch012")
sketch13.AttachmentSupport = (doc.getObject("YZ_Plane"), [""])
sketch13.MapMode = "FlatFace"
sketch13.AttachmentOffset = App.Placement(App.Vector(0, 0, -3), App.Rotation())
sketch13.addGeometry([
    Part.LineSegment(App.Vector(13, -66.5, 0), App.Vector(16, -66.5, 0)),
    Part.LineSegment(App.Vector(16, -66.5, 0), App.Vector(16, -18.5, 0)),
    Part.LineSegment(App.Vector(16, -18.5, 0), App.Vector(13, -18.5, 0)),
    Part.LineSegment(App.Vector(13, -18.5, 0), App.Vector(13, -66.5, 0)),
], False)
sketch13.addGeometry(Part.LineSegment(App.Vector(13, -66.5, 0), App.Vector(16, -66.5, 0)), True)
sketch13.addConstraint([
    Sketcher.Constraint("Coincident", 0, 2, 1, 1),
    Sketcher.Constraint("Coincident", 1, 2, 2, 1),
    Sketcher.Constraint("Coincident", 2, 2, 3, 1),
    Sketcher.Constraint("Coincident", 3, 2, 0, 1),
    Sketcher.Constraint("Horizontal", 0),
    Sketcher.Constraint("Vertical", 1),
    Sketcher.Constraint("Horizontal", 2),
    Sketcher.Constraint("Vertical", 3),
    Sketcher.Constraint("Horizontal", 4),
    Sketcher.Constraint("Coincident", 4, 1, 3, 2),
    Sketcher.Constraint("Vertical", 1, 2, 4, 2),
    Sketcher.Constraint("DistanceX", 0, 1, 0, 2, 3.0),
    Sketcher.Constraint("DistanceY", 1, 1, 1, 2, 48.0),
    Sketcher.Constraint("DistanceX", -1, 1, 0, 2, 16.0),
    Sketcher.Constraint("DistanceY", 0, 2, -1, 1, 66.5),
])
groove8 = body.newObject("PartDesign::Groove", "Groove007")
groove8.Profile = sketch13
groove8.ReferenceAxis = (sketch13, ["Axis0"])
groove8.Angle = 360

sketch14 = body.newObject("Sketcher::SketchObject", "Sketch013")
sketch14.AttachmentSupport = (doc.getObject("YZ_Plane"), [""])
sketch14.MapMode = "FlatFace"
sketch14.AttachmentOffset = App.Placement(App.Vector(0, 0, -3), App.Rotation())
sketch14.addGeometry([
    Part.LineSegment(App.Vector(7, -66.5, 0), App.Vector(10, -66.5, 0)),
    Part.LineSegment(App.Vector(10, -66.5, 0), App.Vector(10, -18.5, 0)),
    Part.LineSegment(App.Vector(10, -18.5, 0), App.Vector(7, -18.5, 0)),
    Part.LineSegment(App.Vector(7, -18.5, 0), App.Vector(7, -66.5, 0)),
], False)
sketch14.addGeometry(Part.LineSegment(App.Vector(7, -66.5, 0), App.Vector(10, -66.5, 0)), True)
sketch14.addConstraint([
    Sketcher.Constraint("Coincident", 0, 2, 1, 1),
    Sketcher.Constraint("Coincident", 1, 2, 2, 1),
    Sketcher.Constraint("Coincident", 2, 2, 3, 1),
    Sketcher.Constraint("Coincident", 3, 2, 0, 1),
    Sketcher.Constraint("Horizontal", 0),
    Sketcher.Constraint("Vertical", 1),
    Sketcher.Constraint("Horizontal", 2),
    Sketcher.Constraint("Vertical", 3),
    Sketcher.Constraint("Horizontal", 4),
    Sketcher.Constraint("Coincident", 4, 1, 3, 2),
    Sketcher.Constraint("Vertical", 1, 2, 4, 2),
    Sketcher.Constraint("DistanceX", 0, 1, 0, 2, 3.0),
    Sketcher.Constraint("DistanceY", 1, 1, 1, 2, 48.0),
    Sketcher.Constraint("DistanceX", -1, 1, 0, 2, 10.0),
    Sketcher.Constraint("DistanceY", 0, 2, -1, 1, 66.5),
])
groove9 = body.newObject("PartDesign::Groove", "Groove008")
groove9.Profile = sketch14
groove9.ReferenceAxis = (sketch14, ["Axis0"])
groove9.Angle = 360

sketch15 = body.newObject("Sketcher::SketchObject", "Sketch014")
sketch15.AttachmentSupport = (doc.getObject("XY_Plane"), [""])
sketch15.MapMode = "FlatFace"
sketch15.addGeometry([
    Part.LineSegment(App.Vector(-72, 58, 0), App.Vector(-72, 55, 0)),
    Part.LineSegment(App.Vector(-72, 55, 0), App.Vector(-24, 55, 0)),
    Part.LineSegment(App.Vector(-24, 55, 0), App.Vector(-24, 58, 0)),
    Part.LineSegment(App.Vector(-24, 58, 0), App.Vector(-72, 58, 0)),
], False)
sketch15.addGeometry(Part.LineSegment(App.Vector(-72, 58, 0), App.Vector(-72, 55, 0)), True)
sketch15.addConstraint([
    Sketcher.Constraint("Coincident", 0, 2, 1, 1),
    Sketcher.Constraint("Coincident", 1, 2, 2, 1),
    Sketcher.Constraint("Coincident", 2, 2, 3, 1),
    Sketcher.Constraint("Coincident", 3, 2, 0, 1),
    Sketcher.Constraint("Vertical", 0),
    Sketcher.Constraint("Horizontal", 1),
    Sketcher.Constraint("Vertical", 2),
    Sketcher.Constraint("Horizontal", 3),
    Sketcher.Constraint("Vertical", 4),
    Sketcher.Constraint("Coincident", 4, 1, 3, 2),
    Sketcher.Constraint("Horizontal", 1, 2, 4, 2),
    Sketcher.Constraint("DistanceX", 1, 1, 1, 2, 48.0),
    Sketcher.Constraint("DistanceY", 0, 2, 0, 1, 3.0),
    Sketcher.Constraint("DistanceX", 0, 2, -1, 1, 72.0),
    Sketcher.Constraint("DistanceY", -1, 1, 0, 2, 55.0),
])
groove10 = body.newObject("PartDesign::Groove", "Groove009")
groove10.Profile = sketch15
groove10.ReferenceAxis = (sketch15, ["Axis0"])
groove10.Angle = 360
doc.recompute()

linearpattern2 = body.newObject("PartDesign::LinearPattern", "LinearPattern001")
linearpattern2.Originals = [groove10]
linearpattern2.Direction = (doc.getObject("Y_Axis"), [""])
linearpattern2.Mode = "offset"
linearpattern2.Offset = 6
linearpattern2.Occurrences = 9
linearpattern2.Reversed = True
body.Tip = linearpattern2

doc.recompute()
